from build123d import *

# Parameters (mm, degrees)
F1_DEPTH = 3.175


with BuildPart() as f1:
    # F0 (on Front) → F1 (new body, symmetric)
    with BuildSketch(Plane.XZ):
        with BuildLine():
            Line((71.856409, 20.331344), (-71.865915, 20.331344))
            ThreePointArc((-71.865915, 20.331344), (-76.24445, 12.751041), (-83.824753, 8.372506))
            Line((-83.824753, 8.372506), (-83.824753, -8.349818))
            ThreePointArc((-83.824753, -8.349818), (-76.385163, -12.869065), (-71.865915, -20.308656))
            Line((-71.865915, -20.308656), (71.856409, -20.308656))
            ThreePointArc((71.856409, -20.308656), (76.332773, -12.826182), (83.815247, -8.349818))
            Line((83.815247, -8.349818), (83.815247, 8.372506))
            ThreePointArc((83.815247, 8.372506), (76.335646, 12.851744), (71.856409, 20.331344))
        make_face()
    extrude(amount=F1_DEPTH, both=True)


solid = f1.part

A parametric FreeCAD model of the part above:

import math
import FreeCAD as App
import Part
import Sketcher

V = App.Vector
Q = App.Units.Quantity

doc = App.newDocument("Part")
params = doc.addObject("Spreadsheet::Sheet", "Params")
for row, (alias, value) in enumerate([
    ("pad1_length", "0.25 in"),
], start=1):
    params.set(f"A{row}", alias)
    params.set(f"B{row}", "=" + value)
    params.setAlias(f"B{row}", alias)

body = doc.addObject("PartDesign::Body", "Body")

# Sketch on XZ plane
sketch1 = body.newObject("Sketcher::SketchObject", "Sketch")
sketch1.AttachmentSupport = (doc.getObject("XZ_Plane"), [""])
sketch1.MapMode = "FlatFace"
sketch1.addGeometry([
    Part.LineSegment(V(72, 20, 0), V(-72, 20, 0)),  # 0
    Part.ArcOfCircle(Part.Circle(V(-88, 25, 0), V(0, 0, 1), 17), math.radians(-75), math.radians(-15)),  # 1
    Part.LineSegment(V(-84, 8, 0), V(-84, -8, 0)),  # 2
    Part.ArcOfCircle(Part.Circle(V(-89, -26, 0), V(0, 0, 1), 18), math.radians(18), math.radians(72)),  # 3
    Part.LineSegment(V(-72, -20, 0), V(72, -20, 0)),  # 4
    Part.ArcOfCircle(Part.Circle(V(89, -25, 0), V(0, 0, 1), 18), math.radians(107), math.radians(163)),  # 5
    Part.LineSegment(V(84, -8, 0), V(84, 8, 0)),  # 6
    Part.ArcOfCircle(Part.Circle(V(89, 26, 0), V(0, 0, 1), 18), math.radians(-163), math.radians(-107)),  # 7
], False)
sketch1.addConstraint([
    Sketcher.Constraint("Coincident", 0, 2, 1, 2),
    Sketcher.Constraint("Coincident", 1, 1, 2, 1),
    Sketcher.Constraint("Coincident", 2, 2, 3, 2),
    Sketcher.Constraint("Coincident", 3, 1, 4, 1),
    Sketcher.Constraint("Coincident", 4, 2, 5, 2),
    Sketcher.Constraint("Coincident", 5, 1, 6, 1),
    Sketcher.Constraint("Coincident", 6, 2, 7, 2),
    Sketcher.Constraint("Coincident", 7, 1, 0, 1),
    Sketcher.Constraint("Horizontal", 0),
    Sketcher.Constraint("Vertical", 2),
    Sketcher.Constraint("Horizontal", 4),
    Sketcher.Constraint("Vertical", 6),
    Sketcher.Constraint("Horizontal", 2, 2, 5, 1),
    Sketcher.Constraint("Horizontal", 1, 1, 6, 2),
    Sketcher.Constraint("Vertical", 0, 2, 3, 1),
    Sketcher.Constraint("Vertical", 4, 2, 7, 1),
    Sketcher.Constraint("DistanceY", 3, 1, 0, 2, Q("1.6 in")),
    Sketcher.Constraint("Radius", 7, 17.913088),
    Sketcher.Constraint("Radius", 1, 16.924213),
    Sketcher.Constraint("Radius", 3, 18.346565),
    Sketcher.Constraint("Radius", 5, 17.882902),
    Sketcher.Constraint("DistanceX", 0, 2, 0, 1, 143.722324),
    Sketcher.Constraint("DistanceY", 2, 2, 2, 1, 16.722324),
    Sketcher.Constraint("DistanceY", -1, 1, 7, 3, 25.51821),
    Sketcher.Constraint("DistanceY", 2, 2, -1, 1, 8.349818),
    Sketcher.Constraint("DistanceX", -1, 1, 4, 2, 71.856409),
    Sketcher.Constraint("DistanceX", 1, 3, 5, 3, 177.18957),
    Sketcher.Constraint("DistanceY", 5, 3, 1, 3, 50.18957),
])
pad1 = body.newObject("PartDesign::Pad", "Pad")
pad1.Profile = sketch1
pad1.setExpression("Length", "Params.pad1_length")
pad1.Midplane = True

doc.recompute()
